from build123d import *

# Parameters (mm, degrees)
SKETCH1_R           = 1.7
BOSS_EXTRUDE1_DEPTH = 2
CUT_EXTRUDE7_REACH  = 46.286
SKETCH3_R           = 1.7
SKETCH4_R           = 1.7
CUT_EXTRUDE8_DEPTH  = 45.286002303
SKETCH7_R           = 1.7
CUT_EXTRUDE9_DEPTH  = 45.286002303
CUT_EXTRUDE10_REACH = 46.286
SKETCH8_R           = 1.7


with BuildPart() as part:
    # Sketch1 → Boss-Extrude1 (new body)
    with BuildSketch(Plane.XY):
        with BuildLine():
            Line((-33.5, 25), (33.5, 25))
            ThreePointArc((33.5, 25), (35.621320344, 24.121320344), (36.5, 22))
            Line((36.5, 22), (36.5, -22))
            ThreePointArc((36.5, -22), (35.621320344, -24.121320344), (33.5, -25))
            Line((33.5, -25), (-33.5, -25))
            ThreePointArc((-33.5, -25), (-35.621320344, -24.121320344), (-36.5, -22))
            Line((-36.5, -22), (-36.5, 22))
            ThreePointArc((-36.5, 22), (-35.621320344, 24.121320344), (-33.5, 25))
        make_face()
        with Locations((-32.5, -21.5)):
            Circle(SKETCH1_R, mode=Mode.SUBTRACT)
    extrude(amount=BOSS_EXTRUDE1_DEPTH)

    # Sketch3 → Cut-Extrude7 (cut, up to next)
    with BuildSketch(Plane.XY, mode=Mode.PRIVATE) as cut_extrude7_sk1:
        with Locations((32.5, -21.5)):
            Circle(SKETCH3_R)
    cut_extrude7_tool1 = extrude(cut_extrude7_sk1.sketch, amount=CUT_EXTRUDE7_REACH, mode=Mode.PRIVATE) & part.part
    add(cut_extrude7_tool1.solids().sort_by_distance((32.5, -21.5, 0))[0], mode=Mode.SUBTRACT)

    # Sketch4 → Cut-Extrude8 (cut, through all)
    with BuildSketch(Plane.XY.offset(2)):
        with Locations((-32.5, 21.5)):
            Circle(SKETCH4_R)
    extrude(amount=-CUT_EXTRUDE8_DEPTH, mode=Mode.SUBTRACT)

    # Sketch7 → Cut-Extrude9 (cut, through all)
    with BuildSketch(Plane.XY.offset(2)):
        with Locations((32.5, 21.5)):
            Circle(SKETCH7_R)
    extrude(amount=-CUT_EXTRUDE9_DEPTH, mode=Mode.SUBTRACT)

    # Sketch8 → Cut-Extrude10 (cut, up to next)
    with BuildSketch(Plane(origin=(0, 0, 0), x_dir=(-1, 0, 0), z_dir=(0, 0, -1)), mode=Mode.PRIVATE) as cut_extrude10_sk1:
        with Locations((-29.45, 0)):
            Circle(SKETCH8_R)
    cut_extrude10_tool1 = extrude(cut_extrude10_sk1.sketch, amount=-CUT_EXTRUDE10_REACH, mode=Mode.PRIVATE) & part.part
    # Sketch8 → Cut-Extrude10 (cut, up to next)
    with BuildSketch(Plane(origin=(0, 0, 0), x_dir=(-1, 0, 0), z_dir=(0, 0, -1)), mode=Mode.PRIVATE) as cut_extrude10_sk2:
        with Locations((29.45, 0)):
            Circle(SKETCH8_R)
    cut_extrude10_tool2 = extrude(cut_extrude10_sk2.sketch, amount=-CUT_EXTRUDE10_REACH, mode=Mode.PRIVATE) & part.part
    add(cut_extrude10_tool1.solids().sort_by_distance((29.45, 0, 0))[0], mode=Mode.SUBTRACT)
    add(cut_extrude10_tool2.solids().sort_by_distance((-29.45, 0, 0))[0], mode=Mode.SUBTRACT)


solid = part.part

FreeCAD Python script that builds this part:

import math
import FreeCAD as App
import Part
import Sketcher
from FreeCAD import Vector
Q = App.Units.Quantity

doc = App.newDocument("Part")
body = doc.addObject("PartDesign::Body", "Body")

sketch1 = body.newObject("Sketcher::SketchObject", "Sketch")
sketch1.AttachmentSupport = (doc.getObject("XY_Plane"), [""])
sketch1.MapMode = "FlatFace"
sketch1.addGeometry(Part.LineSegment(Vector(33.5, 25, 0), Vector(-33.5, 25, 0)), False)
sketch1.addGeometry(Part.ArcOfCircle(Part.Circle(Vector(-33.5, 22, 0), Vector(0, 0, 1), 3), math.radians(90), math.radians(180)), False)
sketch1.addGeometry(Part.LineSegment(Vector(-36.5, 22, 0), Vector(-36.5, -22, 0)), False)
sketch1.addGeometry(Part.ArcOfCircle(Part.Circle(Vector(-33.5, -22, 0), Vector(0, 0, 1), 3), math.radians(180), math.radians(270)), False)
sketch1.addGeometry(Part.LineSegment(Vector(-33.5, -25, 0), Vector(33.5, -25, 0)), False)
sketch1.addGeometry(Part.ArcOfCircle(Part.Circle(Vector(33.5, -22, 0), Vector(0, 0, 1), 3), math.radians(-90), math.radians(0)), False)
sketch1.addGeometry(Part.LineSegment(Vector(36.5, -22, 0), Vector(36.5, 22, 0)), False)
sketch1.addGeometry(Part.ArcOfCircle(Part.Circle(Vector(33.5, 22, 0), Vector(0, 0, 1), 3), math.radians(0), math.radians(90)), False)
sketch1.addGeometry(Part.Circle(Vector(-32.5, -21.5, 0), Vector(0, 0, 1), 1.7), False)
sketch1.addConstraint(Sketcher.Constraint("Tangent", 0, 2, 1, 1))
sketch1.addConstraint(Sketcher.Constraint("Tangent", 1, 2, 2, 1))
sketch1.addConstraint(Sketcher.Constraint("Tangent", 2, 2, 3, 1))
sketch1.addConstraint(Sketcher.Constraint("Tangent", 3, 2, 4, 1))
sketch1.addConstraint(Sketcher.Constraint("Tangent", 4, 2, 5, 1))
sketch1.addConstraint(Sketcher.Constraint("Tangent", 5, 2, 6, 1))
sketch1.addConstraint(Sketcher.Constraint("Tangent", 6, 2, 7, 1))
sketch1.addConstraint(Sketcher.Constraint("Tangent", 7, 2, 0, 1))
sketch1.addConstraint(Sketcher.Constraint("Horizontal", 0))
sketch1.addConstraint(Sketcher.Constraint("Vertical", 2))
sketch1.addConstraint(Sketcher.Constraint("Horizontal", 4))
sketch1.addConstraint(Sketcher.Constraint("Vertical", 6))
sketch1.addConstraint(Sketcher.Constraint("Equal", 1, 3))
sketch1.addConstraint(Sketcher.Constraint("Equal", 3, 5))
sketch1.addConstraint(Sketcher.Constraint("Equal", 5, 7))
sketch1.addConstraint(Sketcher.Constraint("Symmetric", 1, 3, 5, 3, -1, 1))
sketch1.addConstraint(Sketcher.Constraint("Radius", 1, Q("3 mm")))
sketch1.addConstraint(Sketcher.Constraint("Diameter", 8, Q("3.4 mm")))
sketch1.addConstraint(Sketcher.Constraint("DistanceX", 0, 2, 0, 1, Q("67 mm")))
sketch1.addConstraint(Sketcher.Constraint("DistanceY", 2, 2, 2, 1, Q("44 mm")))
sketch1.addConstraint(Sketcher.Constraint("DistanceX", 3, 3, 8, 3, Q("1 mm")))
sketch1.addConstraint(Sketcher.Constraint("DistanceY", 8, 3, -1, 1, Q("21.5 mm")))
pad1 = body.newObject("PartDesign::Pad", "Pad")
pad1.Profile = sketch1
pad1.Length = 2

sketch2 = body.newObject("Sketcher::SketchObject", "Sketch001")
sketch2.AttachmentSupport = (doc.getObject("XY_Plane"), [""])
sketch2.MapMode = "FlatFace"
sketch2.addGeometry(Part.Circle(Vector(32.5, -21.5, 0), Vector(0, 0, 1), 1.7), False)
sketch2.addConstraint(Sketcher.Constraint("Diameter", 0, Q("3.4 mm")))
sketch2.addConstraint(Sketcher.Constraint("DistanceX", -1, 1, 0, 3, Q("32.5 mm")))
sketch2.addConstraint(Sketcher.Constraint("DistanceY", 0, 3, -1, 1, Q("21.5 mm")))
pocket1 = body.newObject("PartDesign::Pocket", "Pocket")
pocket1.Profile = sketch2
pocket1.Type = "UpToFirst"
pocket1.Reversed = True

sketch3 = body.newObject("Sketcher::SketchObject", "Sketch002")
sketch3.AttachmentSupport = (doc.getObject("XY_Plane"), [""])
sketch3.MapMode = "FlatFace"
sketch3.AttachmentOffset = App.Placement(Vector(0, 0, 2), App.Rotation())
sketch3.addGeometry(Part.Circle(Vector(-32.5, 21.5, 0), Vector(0, 0, 1), 1.7), False)
sketch3.addConstraint(Sketcher.Constraint("Diameter", 0, Q("3.4 mm")))
sketch3.addConstraint(Sketcher.Constraint("DistanceX", 0, 3, -1, 1, Q("32.5 mm")))
sketch3.addConstraint(Sketcher.Constraint("DistanceY", -1, 1, 0, 3, Q("21.5 mm")))
pocket2 = body.newObject("PartDesign::Pocket", "Pocket001")
pocket2.Profile = sketch3
pocket2.Type = "ThroughAll"

sketch4 = body.newObject("Sketcher::SketchObject", "Sketch003")
sketch4.AttachmentSupport = (doc.getObject("XY_Plane"), [""])
sketch4.MapMode = "FlatFace"
sketch4.AttachmentOffset = App.Placement(Vector(0, 0, 2), App.Rotation())
sketch4.addGeometry(Part.Circle(Vector(32.5, 21.5, 0), Vector(0, 0, 1), 1.7), False)
sketch4.addConstraint(Sketcher.Constraint("Diameter", 0, Q("3.4 mm")))
sketch4.addConstraint(Sketcher.Constraint("DistanceX", -1, 1, 0, 3, Q("32.5 mm")))
sketch4.addConstraint(Sketcher.Constraint("DistanceY", -1, 1, 0, 3, Q("21.5 mm")))
pocket3 = body.newObject("PartDesign::Pocket", "Pocket002")
pocket3.Profile = sketch4
pocket3.Type = "ThroughAll"

sketch5 = body.newObject("Sketcher::SketchObject", "Sketch004")
sketch5.AttachmentSupport = (doc.getObject("XY_Plane"), [""])
sketch5.MapMode = "FlatFace"
sketch5.addGeometry(Part.Circle(Vector(29.4, 0, 0), Vector(0, 0, 1), 1.7), False)
sketch5.addConstraint(Sketcher.Constraint("PointOnObject", 0, 3, -1))
sketch5.addConstraint(Sketcher.Constraint("Diameter", 0, Q("3.4 mm")))
sketch5.addConstraint(Sketcher.Constraint("DistanceX", -1, 1, 0, 3, Q("29.45 mm")))
pocket4 = body.newObject("PartDesign::Pocket", "Pocket003")
pocket4.Profile = sketch5
pocket4.Type = "UpToFirst"
pocket4.Reversed = True

sketch6 = body.newObject("Sketcher::SketchObject", "Sketch005")
sketch6.AttachmentSupport = (doc.getObject("XY_Plane"), [""])
sketch6.MapMode = "FlatFace"
sketch6.addGeometry(Part.Circle(Vector(-29.4, 0, 0), Vector(0, 0, 1), 1.7), False)
sketch6.addConstraint(Sketcher.Constraint("PointOnObject", 0, 3, -1))
sketch6.addConstraint(Sketcher.Constraint("Diameter", 0, Q("3.4 mm")))
sketch6.addConstraint(Sketcher.Constraint("DistanceX", 0, 3, -1, 1, Q("29.45 mm")))
pocket5 = body.newObject("PartDesign::Pocket", "Pocket004")
pocket5.Profile = sketch6
pocket5.Type = "UpToFirst"
pocket5.Reversed = True

doc.recompute()
